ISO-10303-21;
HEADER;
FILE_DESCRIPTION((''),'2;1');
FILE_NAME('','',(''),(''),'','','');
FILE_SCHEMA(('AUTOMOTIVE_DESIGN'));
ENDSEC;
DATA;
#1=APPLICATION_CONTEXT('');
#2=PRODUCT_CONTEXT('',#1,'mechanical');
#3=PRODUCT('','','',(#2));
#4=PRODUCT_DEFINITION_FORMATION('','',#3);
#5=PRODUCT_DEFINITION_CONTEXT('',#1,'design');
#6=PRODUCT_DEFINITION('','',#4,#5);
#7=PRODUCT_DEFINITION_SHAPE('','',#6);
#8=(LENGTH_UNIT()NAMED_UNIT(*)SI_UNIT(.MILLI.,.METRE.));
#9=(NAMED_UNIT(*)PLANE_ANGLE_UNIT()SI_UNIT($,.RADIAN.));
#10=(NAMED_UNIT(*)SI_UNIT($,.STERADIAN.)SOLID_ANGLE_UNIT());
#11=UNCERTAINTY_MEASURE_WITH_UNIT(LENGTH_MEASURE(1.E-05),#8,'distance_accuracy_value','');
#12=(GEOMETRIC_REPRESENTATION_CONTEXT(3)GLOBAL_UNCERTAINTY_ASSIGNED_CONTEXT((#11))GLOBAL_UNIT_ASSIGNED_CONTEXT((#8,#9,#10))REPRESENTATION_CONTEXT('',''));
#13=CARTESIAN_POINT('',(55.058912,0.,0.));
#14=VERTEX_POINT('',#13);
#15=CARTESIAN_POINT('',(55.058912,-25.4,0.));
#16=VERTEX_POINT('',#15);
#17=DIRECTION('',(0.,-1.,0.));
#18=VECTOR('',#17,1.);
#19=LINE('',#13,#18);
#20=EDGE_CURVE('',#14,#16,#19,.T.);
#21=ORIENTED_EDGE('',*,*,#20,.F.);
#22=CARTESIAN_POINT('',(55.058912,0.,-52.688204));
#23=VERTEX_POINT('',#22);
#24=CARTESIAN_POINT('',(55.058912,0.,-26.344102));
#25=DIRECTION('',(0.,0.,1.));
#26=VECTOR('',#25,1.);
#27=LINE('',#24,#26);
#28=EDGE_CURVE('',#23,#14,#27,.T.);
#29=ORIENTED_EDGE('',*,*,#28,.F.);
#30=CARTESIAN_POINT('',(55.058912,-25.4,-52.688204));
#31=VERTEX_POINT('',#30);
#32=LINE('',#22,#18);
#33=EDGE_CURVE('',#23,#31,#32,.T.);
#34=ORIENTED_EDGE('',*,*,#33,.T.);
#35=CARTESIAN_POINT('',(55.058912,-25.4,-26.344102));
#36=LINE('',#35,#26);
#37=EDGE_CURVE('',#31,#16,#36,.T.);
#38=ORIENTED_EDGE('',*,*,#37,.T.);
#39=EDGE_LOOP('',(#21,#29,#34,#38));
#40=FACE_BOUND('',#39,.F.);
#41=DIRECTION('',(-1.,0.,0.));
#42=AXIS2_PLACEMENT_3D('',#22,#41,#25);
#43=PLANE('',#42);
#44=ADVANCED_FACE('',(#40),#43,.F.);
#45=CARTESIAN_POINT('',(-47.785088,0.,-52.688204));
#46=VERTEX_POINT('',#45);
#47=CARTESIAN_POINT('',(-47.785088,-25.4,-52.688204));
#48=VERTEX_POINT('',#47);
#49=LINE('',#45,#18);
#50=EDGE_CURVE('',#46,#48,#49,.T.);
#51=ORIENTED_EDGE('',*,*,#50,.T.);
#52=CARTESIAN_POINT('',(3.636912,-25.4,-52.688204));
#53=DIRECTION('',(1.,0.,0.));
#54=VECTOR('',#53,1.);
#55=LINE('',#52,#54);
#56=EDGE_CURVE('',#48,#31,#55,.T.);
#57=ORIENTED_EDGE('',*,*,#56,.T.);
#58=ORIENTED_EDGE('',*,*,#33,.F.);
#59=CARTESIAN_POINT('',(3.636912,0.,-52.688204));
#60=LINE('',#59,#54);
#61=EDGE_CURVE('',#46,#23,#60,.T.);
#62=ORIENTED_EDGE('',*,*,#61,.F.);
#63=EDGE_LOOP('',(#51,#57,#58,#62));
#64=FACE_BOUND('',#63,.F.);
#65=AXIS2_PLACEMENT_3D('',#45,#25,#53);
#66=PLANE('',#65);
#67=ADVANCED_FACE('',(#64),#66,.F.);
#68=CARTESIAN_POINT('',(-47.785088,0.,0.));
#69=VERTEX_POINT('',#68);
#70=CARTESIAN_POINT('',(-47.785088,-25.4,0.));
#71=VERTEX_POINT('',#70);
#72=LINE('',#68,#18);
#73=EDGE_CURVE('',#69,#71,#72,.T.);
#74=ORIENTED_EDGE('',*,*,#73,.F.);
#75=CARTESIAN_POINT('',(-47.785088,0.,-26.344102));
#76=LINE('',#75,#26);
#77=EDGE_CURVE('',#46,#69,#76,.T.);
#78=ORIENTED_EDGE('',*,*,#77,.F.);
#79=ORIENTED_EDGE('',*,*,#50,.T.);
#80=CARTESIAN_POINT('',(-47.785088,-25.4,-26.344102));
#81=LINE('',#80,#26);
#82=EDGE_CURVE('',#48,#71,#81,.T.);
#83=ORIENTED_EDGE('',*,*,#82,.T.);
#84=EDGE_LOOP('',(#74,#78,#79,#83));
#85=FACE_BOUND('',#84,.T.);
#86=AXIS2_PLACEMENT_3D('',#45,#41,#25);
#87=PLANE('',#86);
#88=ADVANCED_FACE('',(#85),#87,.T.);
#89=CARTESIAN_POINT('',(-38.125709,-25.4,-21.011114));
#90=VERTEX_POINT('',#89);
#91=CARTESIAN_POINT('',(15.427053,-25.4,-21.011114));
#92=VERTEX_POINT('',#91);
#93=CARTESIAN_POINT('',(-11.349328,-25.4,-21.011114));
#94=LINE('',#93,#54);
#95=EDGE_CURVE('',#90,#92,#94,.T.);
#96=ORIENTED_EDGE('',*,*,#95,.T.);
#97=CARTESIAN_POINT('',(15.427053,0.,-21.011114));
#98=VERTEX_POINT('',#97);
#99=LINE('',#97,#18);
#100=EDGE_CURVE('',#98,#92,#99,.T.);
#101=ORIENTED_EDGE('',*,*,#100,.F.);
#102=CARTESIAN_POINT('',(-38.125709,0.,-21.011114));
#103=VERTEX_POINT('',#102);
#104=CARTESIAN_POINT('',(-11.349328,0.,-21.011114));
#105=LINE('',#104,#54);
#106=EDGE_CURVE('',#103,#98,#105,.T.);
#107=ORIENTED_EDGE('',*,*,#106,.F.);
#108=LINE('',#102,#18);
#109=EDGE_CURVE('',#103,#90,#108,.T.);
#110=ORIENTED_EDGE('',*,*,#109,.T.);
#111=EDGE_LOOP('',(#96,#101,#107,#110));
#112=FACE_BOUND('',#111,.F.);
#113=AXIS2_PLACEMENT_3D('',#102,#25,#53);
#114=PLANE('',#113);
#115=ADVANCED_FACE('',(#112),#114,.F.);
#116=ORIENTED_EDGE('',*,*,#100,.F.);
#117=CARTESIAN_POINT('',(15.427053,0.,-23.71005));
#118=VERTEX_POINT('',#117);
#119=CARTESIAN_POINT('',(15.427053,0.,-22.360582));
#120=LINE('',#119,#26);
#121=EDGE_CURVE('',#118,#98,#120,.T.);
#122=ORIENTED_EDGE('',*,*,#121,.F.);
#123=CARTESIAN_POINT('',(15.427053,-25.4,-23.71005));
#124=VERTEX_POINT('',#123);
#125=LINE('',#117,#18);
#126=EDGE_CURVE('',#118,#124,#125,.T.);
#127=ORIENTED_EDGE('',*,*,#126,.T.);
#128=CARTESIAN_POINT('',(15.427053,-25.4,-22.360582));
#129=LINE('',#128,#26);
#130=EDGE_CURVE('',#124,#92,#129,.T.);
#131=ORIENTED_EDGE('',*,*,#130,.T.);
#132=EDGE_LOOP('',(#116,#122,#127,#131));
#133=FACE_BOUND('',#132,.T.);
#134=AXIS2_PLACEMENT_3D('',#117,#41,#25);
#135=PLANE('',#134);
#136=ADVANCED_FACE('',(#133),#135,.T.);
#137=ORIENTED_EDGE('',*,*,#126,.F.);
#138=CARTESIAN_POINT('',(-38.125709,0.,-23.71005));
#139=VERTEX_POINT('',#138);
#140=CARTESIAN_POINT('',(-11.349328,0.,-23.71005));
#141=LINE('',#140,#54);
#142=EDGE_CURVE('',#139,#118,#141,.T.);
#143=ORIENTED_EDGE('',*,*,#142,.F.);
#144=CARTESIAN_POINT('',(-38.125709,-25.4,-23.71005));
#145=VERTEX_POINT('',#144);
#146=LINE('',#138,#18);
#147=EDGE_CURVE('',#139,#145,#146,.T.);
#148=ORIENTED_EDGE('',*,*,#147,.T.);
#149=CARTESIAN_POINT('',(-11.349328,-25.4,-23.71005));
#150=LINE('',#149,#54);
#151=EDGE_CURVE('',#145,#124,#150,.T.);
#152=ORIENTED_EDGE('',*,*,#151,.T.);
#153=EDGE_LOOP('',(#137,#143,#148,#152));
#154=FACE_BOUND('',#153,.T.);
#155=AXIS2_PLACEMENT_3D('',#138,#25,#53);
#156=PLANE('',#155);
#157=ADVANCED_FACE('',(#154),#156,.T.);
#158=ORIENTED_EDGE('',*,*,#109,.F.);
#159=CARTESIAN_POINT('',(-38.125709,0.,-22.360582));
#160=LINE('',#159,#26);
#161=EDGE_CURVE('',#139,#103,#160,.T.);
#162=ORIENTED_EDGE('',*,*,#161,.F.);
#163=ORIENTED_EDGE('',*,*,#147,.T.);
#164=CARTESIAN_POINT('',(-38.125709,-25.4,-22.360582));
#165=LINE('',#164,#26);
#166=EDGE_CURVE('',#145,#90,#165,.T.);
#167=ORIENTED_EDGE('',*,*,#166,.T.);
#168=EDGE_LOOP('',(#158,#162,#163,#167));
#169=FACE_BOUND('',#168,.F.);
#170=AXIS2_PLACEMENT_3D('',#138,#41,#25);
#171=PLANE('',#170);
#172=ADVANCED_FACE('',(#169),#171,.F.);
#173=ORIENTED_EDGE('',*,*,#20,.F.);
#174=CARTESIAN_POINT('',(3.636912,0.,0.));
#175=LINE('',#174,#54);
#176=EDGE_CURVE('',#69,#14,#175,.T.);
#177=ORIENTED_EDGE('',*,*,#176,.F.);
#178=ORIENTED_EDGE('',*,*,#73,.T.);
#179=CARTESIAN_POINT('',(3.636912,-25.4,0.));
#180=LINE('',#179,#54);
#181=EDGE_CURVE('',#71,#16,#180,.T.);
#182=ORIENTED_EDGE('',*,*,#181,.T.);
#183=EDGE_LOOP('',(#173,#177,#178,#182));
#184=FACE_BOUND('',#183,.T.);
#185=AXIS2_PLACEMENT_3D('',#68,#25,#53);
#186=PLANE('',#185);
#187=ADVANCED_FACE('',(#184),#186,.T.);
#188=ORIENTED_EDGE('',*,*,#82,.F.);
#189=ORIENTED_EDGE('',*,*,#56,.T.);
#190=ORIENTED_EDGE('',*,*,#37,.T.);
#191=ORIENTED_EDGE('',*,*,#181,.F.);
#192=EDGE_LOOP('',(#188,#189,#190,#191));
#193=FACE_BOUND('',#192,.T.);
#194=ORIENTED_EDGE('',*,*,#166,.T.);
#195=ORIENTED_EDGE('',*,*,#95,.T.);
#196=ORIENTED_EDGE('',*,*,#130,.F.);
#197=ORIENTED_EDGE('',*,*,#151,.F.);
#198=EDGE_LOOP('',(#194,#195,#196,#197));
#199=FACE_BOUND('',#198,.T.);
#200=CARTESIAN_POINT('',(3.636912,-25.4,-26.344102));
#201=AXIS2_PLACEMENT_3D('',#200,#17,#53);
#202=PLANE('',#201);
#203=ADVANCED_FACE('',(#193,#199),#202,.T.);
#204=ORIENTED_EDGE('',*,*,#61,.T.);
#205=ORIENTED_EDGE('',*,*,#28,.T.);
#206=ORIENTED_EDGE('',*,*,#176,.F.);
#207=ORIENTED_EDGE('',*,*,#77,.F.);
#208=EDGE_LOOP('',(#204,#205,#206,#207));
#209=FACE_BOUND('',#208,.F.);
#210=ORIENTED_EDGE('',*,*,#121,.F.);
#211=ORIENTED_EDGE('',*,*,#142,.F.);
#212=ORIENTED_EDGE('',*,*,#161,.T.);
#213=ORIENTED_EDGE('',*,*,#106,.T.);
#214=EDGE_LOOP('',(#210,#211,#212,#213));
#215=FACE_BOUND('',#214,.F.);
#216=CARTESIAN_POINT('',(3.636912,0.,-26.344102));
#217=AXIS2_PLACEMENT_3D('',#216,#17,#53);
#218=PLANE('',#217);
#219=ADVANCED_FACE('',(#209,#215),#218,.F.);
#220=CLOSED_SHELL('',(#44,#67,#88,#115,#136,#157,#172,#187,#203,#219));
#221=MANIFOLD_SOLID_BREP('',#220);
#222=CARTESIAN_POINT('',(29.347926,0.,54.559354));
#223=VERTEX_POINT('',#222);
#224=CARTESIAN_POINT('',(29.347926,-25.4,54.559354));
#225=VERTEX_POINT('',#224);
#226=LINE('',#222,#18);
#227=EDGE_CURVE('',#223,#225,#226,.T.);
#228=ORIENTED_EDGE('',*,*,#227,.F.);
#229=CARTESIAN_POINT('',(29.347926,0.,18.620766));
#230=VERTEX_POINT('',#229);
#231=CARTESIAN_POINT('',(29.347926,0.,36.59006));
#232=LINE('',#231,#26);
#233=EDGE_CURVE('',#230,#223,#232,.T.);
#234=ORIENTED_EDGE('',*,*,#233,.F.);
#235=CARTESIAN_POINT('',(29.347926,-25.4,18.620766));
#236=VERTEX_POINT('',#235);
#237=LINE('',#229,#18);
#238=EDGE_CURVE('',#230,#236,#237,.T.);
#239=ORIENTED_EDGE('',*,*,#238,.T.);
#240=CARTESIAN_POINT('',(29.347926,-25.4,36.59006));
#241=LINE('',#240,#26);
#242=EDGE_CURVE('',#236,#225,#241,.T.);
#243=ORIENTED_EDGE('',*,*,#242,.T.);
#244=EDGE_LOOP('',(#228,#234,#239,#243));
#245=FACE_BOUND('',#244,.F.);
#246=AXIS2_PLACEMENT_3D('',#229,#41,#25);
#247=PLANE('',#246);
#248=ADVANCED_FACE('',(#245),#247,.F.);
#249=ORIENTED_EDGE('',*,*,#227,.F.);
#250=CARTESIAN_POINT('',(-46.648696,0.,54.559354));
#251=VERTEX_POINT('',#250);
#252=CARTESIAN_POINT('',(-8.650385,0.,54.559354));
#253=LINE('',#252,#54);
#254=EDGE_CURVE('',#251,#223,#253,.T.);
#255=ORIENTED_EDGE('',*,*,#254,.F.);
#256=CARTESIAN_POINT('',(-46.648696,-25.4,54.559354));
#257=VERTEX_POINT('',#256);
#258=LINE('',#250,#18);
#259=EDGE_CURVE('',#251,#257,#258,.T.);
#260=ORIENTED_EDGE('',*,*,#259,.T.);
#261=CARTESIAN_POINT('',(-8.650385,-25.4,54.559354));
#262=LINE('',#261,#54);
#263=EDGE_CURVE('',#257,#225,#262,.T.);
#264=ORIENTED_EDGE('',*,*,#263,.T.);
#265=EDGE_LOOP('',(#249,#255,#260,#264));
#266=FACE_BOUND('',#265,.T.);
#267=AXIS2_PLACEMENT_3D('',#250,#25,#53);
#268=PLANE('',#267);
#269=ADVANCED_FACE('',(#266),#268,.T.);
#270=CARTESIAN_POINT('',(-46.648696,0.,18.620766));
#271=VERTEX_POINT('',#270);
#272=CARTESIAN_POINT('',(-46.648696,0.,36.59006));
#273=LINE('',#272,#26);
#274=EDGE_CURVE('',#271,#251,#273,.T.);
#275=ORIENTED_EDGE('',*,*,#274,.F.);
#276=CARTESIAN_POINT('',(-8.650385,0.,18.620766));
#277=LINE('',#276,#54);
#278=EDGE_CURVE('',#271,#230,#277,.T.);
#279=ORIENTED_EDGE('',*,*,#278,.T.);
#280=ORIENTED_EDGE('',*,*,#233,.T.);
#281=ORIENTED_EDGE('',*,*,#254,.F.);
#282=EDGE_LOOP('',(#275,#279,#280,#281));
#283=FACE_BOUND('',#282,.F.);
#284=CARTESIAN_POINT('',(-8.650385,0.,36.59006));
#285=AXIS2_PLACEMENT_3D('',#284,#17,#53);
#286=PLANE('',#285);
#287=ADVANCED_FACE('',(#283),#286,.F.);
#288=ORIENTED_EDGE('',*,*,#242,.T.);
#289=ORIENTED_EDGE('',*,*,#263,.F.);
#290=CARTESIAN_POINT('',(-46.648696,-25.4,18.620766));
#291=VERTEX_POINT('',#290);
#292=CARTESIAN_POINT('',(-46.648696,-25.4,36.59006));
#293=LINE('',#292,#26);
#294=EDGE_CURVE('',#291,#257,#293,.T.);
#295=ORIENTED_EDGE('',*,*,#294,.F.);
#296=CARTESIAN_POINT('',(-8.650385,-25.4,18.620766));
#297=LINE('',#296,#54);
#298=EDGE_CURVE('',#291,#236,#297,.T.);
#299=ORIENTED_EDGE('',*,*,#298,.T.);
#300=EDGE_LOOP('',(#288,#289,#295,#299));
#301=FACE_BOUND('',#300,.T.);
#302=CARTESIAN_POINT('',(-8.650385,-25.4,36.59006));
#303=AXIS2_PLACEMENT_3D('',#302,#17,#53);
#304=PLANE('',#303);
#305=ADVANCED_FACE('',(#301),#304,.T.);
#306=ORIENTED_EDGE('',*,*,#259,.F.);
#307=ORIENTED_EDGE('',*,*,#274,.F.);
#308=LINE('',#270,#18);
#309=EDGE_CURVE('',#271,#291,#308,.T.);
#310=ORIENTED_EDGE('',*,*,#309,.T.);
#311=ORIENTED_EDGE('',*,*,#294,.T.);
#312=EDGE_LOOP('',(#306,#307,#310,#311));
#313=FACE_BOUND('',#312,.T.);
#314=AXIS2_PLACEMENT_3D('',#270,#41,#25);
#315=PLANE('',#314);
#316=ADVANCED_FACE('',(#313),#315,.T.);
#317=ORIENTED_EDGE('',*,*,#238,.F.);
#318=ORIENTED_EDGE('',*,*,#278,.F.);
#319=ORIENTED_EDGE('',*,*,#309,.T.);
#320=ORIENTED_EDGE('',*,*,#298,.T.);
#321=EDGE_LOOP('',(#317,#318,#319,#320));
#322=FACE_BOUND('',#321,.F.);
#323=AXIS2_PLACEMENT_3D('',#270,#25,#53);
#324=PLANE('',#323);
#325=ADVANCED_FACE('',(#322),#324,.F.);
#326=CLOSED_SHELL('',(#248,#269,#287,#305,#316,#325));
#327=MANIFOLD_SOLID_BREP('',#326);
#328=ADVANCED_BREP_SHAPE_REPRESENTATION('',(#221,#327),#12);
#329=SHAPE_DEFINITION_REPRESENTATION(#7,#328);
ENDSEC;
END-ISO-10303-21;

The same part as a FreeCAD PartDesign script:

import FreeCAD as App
import Part
import Sketcher
Q = App.Units.Quantity


def add_polygon(sketch, points):
    """Adds a closed chain of lines whose ends are joined by coincident constraints."""
    first, n = sketch.GeometryCount, len(points)
    for a, b in zip(points, points[1:] + points[:1]):
        sketch.addGeometry(Part.LineSegment(App.Vector(*a, 0), App.Vector(*b, 0)), False)
    for i in range(n):
        sketch.addConstraint(Sketcher.Constraint("Coincident", first + i, 2, first + (i + 1) % n, 1))

doc = App.newDocument("Part")
params = doc.addObject("Spreadsheet::Sheet", "Params")
for row, (alias, value) in enumerate([
    ("pad1_length", "1 in"),
], start=1):
    params.set(f"A{row}", alias)
    params.set(f"B{row}", "=" + value)
    params.setAlias(f"B{row}", alias)

body = doc.addObject("PartDesign::Body", "Body")
body.AllowCompound = True

# Sketch on XZ plane
sketch1 = body.newObject("Sketcher::SketchObject", "Sketch")
sketch1.AttachmentSupport = (doc.getObject("XZ_Plane"), [""])
sketch1.MapMode = "FlatFace"
add_polygon(sketch1, [(-46.648696, 54.559354), (-46.648696, 18.620766), (29.347926, 18.620766), (29.347926, 54.559354)])  # lines 0-3
add_polygon(sketch1, [(-47.785088, 0), (-47.785088, -52.688204), (55.058912, -52.688204), (55.058912, 0)])  # lines 4-7
add_polygon(sketch1, [(15.427053, -23.71005), (-38.125709, -23.71005), (-38.125709, -21.011114), (15.427053, -21.011114)])  # lines 8-11
sketch1.addConstraint(Sketcher.Constraint("Vertical", 0))
sketch1.addConstraint(Sketcher.Constraint("Horizontal", 1))
sketch1.addConstraint(Sketcher.Constraint("Vertical", 2))
sketch1.addConstraint(Sketcher.Constraint("Horizontal", 3))
sketch1.addConstraint(Sketcher.Constraint("Vertical", 4))
sketch1.addConstraint(Sketcher.Constraint("Horizontal", 5))
sketch1.addConstraint(Sketcher.Constraint("Vertical", 6))
sketch1.addConstraint(Sketcher.Constraint("Horizontal", 7))
sketch1.addConstraint(Sketcher.Constraint("Horizontal", 8))
sketch1.addConstraint(Sketcher.Constraint("Vertical", 9))
sketch1.addConstraint(Sketcher.Constraint("Horizontal", 10))
sketch1.addConstraint(Sketcher.Constraint("Vertical", 11))
sketch1.addConstraint(Sketcher.Constraint("PointOnObject", 6, 2, -1))
sketch1.addConstraint(Sketcher.Constraint("DistanceX", 5, 1, 5, 2, Q("102.843999 mm")))
sketch1.addConstraint(Sketcher.Constraint("DistanceX", 1, 1, 1, 2, Q("75.996622 mm")))
sketch1.addConstraint(Sketcher.Constraint("DistanceX", 8, 2, 8, 1, Q("53.552762 mm")))
sketch1.addConstraint(Sketcher.Constraint("DistanceY", 0, 2, 0, 1, Q("35.938587 mm")))
sketch1.addConstraint(Sketcher.Constraint("DistanceY", 4, 2, 4, 1, Q("52.688204 mm")))
sketch1.addConstraint(Sketcher.Constraint("DistanceY", 9, 1, 9, 2, Q("2.698936 mm")))
sketch1.addConstraint(Sketcher.Constraint("DistanceX", -1, 1, 5, 2, Q("55.058912 mm")))
sketch1.addConstraint(Sketcher.Constraint("DistanceX", 8, 2, -1, 1, Q("38.125709 mm")))
sketch1.addConstraint(Sketcher.Constraint("DistanceY", 8, 2, -1, 1, Q("23.71005 mm")))
sketch1.addConstraint(Sketcher.Constraint("DistanceX", 4, 2, 0, 2, Q("1.136392 mm")))
sketch1.addConstraint(Sketcher.Constraint("DistanceY", 4, 2, 0, 2, Q("71.308971 mm")))
pad1 = body.newObject("PartDesign::Pad", "Pad")
pad1.Profile = sketch1
pad1.setExpression("Length", "Params.pad1_length")

doc.recompute()
